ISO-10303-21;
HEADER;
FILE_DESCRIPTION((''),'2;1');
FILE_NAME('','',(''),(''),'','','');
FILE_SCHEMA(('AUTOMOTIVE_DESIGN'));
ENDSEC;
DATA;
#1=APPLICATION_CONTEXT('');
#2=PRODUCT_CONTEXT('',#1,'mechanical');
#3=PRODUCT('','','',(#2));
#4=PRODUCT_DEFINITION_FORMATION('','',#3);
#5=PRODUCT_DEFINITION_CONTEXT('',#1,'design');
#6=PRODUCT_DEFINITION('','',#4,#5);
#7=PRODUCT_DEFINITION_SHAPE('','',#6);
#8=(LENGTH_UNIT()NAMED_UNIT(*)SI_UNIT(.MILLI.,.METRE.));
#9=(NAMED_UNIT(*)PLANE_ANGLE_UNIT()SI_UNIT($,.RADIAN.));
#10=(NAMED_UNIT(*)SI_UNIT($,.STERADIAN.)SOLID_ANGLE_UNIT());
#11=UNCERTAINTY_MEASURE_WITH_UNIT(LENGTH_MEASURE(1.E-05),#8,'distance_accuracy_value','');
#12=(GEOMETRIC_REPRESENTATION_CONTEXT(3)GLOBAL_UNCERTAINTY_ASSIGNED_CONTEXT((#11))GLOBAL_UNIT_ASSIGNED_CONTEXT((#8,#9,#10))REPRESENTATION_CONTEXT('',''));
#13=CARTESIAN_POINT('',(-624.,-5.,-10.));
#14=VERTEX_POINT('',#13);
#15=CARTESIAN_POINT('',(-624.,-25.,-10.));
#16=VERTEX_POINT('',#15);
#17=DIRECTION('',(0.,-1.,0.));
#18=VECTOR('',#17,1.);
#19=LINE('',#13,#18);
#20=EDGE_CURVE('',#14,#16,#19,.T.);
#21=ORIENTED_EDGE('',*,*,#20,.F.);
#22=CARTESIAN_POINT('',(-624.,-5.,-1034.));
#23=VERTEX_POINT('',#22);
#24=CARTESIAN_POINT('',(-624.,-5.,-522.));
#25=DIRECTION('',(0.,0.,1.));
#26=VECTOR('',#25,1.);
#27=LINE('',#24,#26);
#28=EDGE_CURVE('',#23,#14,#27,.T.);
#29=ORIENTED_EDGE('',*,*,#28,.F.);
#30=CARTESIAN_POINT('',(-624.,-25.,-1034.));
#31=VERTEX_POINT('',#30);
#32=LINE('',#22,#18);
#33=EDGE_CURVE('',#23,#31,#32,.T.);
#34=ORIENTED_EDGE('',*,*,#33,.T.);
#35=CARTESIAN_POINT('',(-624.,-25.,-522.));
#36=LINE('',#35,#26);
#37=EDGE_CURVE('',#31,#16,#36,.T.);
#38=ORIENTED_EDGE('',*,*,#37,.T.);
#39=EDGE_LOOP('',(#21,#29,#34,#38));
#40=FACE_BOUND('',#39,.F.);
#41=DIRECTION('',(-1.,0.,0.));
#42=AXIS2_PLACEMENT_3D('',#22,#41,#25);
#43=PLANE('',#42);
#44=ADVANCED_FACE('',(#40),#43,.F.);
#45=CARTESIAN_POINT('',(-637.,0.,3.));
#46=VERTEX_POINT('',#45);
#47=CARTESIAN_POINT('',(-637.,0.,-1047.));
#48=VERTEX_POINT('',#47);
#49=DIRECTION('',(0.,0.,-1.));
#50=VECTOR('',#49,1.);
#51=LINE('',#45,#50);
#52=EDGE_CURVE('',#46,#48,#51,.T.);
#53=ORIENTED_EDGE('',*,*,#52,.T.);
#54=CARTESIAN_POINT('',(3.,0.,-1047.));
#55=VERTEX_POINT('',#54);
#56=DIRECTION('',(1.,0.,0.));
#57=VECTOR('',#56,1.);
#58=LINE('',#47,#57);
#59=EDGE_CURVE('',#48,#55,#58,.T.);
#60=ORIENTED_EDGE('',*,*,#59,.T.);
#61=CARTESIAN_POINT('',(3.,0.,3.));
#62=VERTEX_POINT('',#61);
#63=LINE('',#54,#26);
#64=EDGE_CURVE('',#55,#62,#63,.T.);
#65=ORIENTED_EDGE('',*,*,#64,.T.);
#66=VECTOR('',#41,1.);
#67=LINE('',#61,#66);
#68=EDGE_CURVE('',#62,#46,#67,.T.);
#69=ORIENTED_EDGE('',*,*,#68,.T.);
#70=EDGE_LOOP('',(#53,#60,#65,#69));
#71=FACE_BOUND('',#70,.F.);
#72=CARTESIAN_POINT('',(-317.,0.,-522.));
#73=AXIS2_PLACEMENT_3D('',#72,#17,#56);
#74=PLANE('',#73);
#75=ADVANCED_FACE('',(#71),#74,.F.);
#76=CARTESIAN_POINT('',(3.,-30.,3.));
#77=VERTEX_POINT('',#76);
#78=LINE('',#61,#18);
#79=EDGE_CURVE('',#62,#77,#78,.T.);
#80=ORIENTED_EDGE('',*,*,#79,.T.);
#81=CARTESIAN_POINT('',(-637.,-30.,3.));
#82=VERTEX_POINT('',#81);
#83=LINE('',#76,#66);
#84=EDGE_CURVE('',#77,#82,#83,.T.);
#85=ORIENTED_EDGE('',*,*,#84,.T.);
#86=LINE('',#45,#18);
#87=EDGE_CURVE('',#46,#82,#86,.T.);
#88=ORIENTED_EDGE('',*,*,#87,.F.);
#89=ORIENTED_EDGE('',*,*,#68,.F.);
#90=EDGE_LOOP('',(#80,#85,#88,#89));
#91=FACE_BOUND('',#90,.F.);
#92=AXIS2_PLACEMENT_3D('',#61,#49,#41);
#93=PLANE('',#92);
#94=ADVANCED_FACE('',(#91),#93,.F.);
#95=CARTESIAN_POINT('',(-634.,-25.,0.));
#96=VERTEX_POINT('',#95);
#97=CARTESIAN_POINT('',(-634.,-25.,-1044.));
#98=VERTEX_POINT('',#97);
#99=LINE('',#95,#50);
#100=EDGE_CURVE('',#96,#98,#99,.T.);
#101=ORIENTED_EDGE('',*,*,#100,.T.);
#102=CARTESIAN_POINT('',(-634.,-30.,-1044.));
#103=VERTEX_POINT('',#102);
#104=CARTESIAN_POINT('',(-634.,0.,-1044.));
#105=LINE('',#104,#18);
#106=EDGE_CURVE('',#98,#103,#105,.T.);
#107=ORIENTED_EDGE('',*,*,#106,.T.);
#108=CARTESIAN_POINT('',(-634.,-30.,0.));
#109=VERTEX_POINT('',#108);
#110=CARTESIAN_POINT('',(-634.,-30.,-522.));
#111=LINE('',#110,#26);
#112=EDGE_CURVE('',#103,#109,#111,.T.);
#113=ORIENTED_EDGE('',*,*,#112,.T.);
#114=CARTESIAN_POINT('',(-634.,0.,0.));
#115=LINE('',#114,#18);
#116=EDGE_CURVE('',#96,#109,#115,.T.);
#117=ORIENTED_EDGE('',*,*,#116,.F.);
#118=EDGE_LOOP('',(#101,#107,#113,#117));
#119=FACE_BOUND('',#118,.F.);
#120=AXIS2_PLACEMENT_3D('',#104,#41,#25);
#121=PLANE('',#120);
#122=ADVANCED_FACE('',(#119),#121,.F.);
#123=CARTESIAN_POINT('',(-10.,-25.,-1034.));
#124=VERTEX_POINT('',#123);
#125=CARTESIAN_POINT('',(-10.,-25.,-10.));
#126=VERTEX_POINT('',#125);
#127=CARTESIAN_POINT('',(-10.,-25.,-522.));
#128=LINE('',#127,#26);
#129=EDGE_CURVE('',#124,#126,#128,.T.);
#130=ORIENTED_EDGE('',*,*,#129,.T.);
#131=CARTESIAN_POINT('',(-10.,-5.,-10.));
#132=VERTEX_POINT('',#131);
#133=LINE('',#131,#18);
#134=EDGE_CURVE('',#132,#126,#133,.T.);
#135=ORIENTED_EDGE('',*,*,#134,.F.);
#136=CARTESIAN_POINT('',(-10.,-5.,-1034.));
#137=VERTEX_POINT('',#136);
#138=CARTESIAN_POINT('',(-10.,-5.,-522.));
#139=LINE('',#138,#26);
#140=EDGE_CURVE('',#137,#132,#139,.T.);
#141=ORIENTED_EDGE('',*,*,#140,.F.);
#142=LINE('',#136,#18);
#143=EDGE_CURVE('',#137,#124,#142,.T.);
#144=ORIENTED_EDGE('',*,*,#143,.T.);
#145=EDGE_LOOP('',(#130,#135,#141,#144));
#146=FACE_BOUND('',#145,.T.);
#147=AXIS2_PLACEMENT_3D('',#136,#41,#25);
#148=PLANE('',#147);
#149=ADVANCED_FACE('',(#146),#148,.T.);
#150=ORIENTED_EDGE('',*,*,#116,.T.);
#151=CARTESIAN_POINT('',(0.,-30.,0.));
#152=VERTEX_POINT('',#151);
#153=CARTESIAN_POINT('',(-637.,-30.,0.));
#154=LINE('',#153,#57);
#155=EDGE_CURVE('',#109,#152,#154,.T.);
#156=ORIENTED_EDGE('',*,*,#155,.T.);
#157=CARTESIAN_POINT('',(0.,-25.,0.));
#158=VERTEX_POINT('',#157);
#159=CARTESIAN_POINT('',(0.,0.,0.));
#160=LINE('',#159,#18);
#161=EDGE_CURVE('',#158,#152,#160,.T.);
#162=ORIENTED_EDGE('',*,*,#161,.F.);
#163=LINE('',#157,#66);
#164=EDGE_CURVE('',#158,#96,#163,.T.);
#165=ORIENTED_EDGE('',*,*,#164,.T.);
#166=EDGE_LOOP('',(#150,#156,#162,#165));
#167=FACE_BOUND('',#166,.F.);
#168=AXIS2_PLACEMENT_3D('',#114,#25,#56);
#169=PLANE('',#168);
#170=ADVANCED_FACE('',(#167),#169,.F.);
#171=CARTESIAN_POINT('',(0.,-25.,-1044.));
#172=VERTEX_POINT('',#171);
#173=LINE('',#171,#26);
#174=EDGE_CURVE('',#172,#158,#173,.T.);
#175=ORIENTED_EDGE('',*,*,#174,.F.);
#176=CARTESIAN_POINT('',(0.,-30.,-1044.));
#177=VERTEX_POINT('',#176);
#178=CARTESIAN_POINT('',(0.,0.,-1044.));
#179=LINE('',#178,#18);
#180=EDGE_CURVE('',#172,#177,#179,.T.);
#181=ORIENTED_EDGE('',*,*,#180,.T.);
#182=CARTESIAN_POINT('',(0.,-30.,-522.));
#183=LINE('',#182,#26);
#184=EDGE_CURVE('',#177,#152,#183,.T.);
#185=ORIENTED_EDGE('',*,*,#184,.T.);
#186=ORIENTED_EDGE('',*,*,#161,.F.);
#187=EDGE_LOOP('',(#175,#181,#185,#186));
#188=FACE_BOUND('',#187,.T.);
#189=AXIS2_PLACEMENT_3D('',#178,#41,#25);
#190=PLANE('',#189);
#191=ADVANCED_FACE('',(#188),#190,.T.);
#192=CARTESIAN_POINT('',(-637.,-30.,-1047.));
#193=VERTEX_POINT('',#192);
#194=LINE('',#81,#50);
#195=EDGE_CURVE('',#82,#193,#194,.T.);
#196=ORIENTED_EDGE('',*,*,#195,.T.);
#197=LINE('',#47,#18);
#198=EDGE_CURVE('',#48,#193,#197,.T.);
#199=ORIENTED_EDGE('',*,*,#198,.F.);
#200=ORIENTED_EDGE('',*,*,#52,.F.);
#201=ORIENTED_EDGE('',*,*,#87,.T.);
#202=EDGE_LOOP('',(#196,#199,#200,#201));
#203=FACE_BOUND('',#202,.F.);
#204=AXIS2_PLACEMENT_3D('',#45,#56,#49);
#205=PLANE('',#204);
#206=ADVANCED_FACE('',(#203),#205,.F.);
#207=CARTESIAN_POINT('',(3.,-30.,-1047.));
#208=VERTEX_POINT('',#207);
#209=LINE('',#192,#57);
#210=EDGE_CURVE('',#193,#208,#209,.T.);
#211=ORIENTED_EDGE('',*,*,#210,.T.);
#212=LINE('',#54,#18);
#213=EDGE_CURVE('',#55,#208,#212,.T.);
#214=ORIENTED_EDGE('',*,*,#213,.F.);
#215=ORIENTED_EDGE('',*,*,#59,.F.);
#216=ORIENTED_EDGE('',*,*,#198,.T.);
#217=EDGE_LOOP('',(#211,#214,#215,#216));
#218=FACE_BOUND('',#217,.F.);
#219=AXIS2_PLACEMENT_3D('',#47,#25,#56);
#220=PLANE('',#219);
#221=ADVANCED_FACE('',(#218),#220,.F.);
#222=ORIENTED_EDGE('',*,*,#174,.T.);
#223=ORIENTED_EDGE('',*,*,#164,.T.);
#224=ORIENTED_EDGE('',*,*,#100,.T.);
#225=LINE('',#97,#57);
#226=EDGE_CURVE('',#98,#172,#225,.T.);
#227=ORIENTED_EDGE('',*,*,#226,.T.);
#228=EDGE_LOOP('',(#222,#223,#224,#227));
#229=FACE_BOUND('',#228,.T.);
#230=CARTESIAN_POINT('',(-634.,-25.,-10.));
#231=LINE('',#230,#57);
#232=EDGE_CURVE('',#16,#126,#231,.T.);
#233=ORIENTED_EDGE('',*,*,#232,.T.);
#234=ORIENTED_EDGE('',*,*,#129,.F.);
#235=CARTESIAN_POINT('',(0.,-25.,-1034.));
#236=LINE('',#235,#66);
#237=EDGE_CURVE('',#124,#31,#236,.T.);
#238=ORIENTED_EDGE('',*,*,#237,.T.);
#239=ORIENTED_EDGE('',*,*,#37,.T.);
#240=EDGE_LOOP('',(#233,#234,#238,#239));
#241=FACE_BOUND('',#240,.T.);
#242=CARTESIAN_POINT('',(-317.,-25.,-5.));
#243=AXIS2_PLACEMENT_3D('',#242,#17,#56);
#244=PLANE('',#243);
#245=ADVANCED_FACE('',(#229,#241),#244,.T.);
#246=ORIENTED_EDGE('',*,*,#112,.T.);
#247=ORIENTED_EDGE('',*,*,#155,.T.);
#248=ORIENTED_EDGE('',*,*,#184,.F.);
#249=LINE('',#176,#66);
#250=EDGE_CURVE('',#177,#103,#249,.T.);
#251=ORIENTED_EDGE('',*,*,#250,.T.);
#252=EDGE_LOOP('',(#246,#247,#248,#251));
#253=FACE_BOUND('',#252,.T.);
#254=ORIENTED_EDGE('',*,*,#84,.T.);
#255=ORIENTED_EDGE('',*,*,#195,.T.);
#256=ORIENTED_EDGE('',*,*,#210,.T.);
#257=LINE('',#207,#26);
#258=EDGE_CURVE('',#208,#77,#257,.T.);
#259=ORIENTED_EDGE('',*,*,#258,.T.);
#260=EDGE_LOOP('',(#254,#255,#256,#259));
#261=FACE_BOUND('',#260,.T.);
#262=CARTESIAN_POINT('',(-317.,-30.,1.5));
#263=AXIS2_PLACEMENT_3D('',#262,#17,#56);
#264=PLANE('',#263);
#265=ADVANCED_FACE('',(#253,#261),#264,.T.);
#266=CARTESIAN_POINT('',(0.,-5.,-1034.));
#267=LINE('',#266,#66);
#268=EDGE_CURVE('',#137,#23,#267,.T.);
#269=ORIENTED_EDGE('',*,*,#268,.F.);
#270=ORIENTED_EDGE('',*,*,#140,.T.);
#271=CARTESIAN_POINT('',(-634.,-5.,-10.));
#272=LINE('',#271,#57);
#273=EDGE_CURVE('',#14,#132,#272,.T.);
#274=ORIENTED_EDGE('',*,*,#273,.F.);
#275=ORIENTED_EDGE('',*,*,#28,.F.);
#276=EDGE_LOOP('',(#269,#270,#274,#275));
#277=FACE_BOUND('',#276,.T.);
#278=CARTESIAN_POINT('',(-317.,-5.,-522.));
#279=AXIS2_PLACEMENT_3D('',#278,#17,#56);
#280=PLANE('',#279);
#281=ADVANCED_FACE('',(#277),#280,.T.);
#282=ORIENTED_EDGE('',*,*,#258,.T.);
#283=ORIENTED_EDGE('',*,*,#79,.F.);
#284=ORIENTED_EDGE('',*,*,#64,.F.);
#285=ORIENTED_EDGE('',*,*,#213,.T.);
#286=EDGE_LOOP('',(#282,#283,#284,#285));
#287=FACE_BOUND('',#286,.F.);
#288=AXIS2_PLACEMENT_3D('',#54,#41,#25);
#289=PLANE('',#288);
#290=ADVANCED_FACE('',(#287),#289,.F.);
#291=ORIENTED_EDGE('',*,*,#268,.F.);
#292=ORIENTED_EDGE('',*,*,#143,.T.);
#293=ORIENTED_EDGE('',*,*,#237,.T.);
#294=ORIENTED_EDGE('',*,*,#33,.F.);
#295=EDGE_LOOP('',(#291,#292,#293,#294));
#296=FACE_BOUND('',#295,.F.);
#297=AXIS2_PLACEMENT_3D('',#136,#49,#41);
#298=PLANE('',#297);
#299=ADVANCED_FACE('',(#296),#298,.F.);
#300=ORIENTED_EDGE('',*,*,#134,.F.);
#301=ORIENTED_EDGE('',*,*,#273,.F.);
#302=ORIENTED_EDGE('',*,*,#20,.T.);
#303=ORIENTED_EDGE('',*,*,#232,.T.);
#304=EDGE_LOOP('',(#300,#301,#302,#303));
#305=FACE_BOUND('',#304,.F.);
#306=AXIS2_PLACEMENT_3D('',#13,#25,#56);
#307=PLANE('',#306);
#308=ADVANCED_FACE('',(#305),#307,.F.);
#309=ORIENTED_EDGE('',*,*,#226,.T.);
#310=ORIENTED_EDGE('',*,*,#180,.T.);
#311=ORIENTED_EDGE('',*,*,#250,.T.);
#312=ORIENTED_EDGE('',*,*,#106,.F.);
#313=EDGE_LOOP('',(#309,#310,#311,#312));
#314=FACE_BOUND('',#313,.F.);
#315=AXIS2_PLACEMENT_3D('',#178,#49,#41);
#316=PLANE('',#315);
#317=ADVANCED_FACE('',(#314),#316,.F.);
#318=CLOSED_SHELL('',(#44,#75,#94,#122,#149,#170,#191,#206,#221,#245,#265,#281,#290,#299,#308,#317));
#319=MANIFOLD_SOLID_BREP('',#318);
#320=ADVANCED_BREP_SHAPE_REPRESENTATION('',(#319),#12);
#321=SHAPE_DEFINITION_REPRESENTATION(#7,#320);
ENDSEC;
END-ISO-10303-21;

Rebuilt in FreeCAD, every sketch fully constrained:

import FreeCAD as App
import Part
import Sketcher

V = App.Vector
Q = App.Units.Quantity

doc = App.newDocument("Part")
body = doc.addObject("PartDesign::Body", "Body")

# Sketch on XZ plane
sketch1 = doc.addObject("Sketcher::SketchObject", "Sketch")
body.addObject(sketch1)
sketch1.AttachmentSupport = (doc.XZ_Plane, [""])
sketch1.MapMode = "FlatFace"
sketch1.addGeometry(Part.LineSegment(V(3, 3, 0), V(-637, 3, 0)), False)
sketch1.addGeometry(Part.LineSegment(V(-637, 3, 0), V(-637, -1047, 0)), False)
sketch1.addGeometry(Part.LineSegment(V(-637, -1047, 0), V(3, -1047, 0)), False)
sketch1.addGeometry(Part.LineSegment(V(3, -1047, 0), V(3, 3, 0)), False)
sketch1.addGeometry(Part.LineSegment(V(-634, -1044, 0), V(-634, 0, 0)), False)
sketch1.addGeometry(Part.LineSegment(V(-634, 0, 0), V(0, 0, 0)), False)
sketch1.addGeometry(Part.LineSegment(V(0, 0, 0), V(0, -1044, 0)), False)
sketch1.addGeometry(Part.LineSegment(V(0, -1044, 0), V(-634, -1044, 0)), False)
sketch1.addConstraint(Sketcher.Constraint("Coincident", 0, 2, 1, 1))
sketch1.addConstraint(Sketcher.Constraint("Coincident", 1, 2, 2, 1))
sketch1.addConstraint(Sketcher.Constraint("Coincident", 2, 2, 3, 1))
sketch1.addConstraint(Sketcher.Constraint("Coincident", 3, 2, 0, 1))
sketch1.addConstraint(Sketcher.Constraint("Coincident", 4, 2, 5, 1))
sketch1.addConstraint(Sketcher.Constraint("Coincident", 5, 2, 6, 1))
sketch1.addConstraint(Sketcher.Constraint("Coincident", 6, 2, 7, 1))
sketch1.addConstraint(Sketcher.Constraint("Coincident", 7, 2, 4, 1))
sketch1.addConstraint(Sketcher.Constraint("Horizontal", 0))
sketch1.addConstraint(Sketcher.Constraint("Vertical", 1))
sketch1.addConstraint(Sketcher.Constraint("Horizontal", 2))
sketch1.addConstraint(Sketcher.Constraint("Vertical", 3))
sketch1.addConstraint(Sketcher.Constraint("Vertical", 4))
sketch1.addConstraint(Sketcher.Constraint("Horizontal", 5))
sketch1.addConstraint(Sketcher.Constraint("Vertical", 6))
sketch1.addConstraint(Sketcher.Constraint("Horizontal", 7))
sketch1.addConstraint(Sketcher.Constraint("Coincident", 5, 2, -1, 1))
sketch1.addConstraint(Sketcher.Constraint("DistanceX", 0, 2, 0, 1, Q("640 mm")))
sketch1.addConstraint(Sketcher.Constraint("DistanceX", 5, 1, 5, 2, Q("634 mm")))
sketch1.addConstraint(Sketcher.Constraint("DistanceY", 1, 2, 1, 1, Q("1050 mm")))
sketch1.addConstraint(Sketcher.Constraint("DistanceY", 4, 1, 4, 2, Q("1044 mm")))
sketch1.addConstraint(Sketcher.Constraint("DistanceX", 0, 2, -1, 1, Q("637 mm")))
sketch1.addConstraint(Sketcher.Constraint("DistanceY", -1, 1, 0, 2, Q("3 mm")))
pad1 = doc.addObject("PartDesign::Pad", "Pad")
body.addObject(pad1)
pad1.Profile = sketch1
pad1.Length = 30

# Sketch on XZ plane
sketch2 = doc.addObject("Sketcher::SketchObject", "Sketch001")
body.addObject(sketch2)
sketch2.AttachmentSupport = (doc.XZ_Plane, [""])
sketch2.MapMode = "FlatFace"
sketch2.addGeometry(Part.LineSegment(V(-634, 0, 0), V(-634, -1044, 0)), False)
sketch2.addGeometry(Part.LineSegment(V(-634, -1044, 0), V(0, -1044, 0)), False)
sketch2.addGeometry(Part.LineSegment(V(0, -1044, 0), V(0, 0, 0)), False)
sketch2.addGeometry(Part.LineSegment(V(0, 0, 0), V(-634, 0, 0)), False)
sketch2.addConstraint(Sketcher.Constraint("Coincident", 0, 2, 1, 1))
sketch2.addConstraint(Sketcher.Constraint("Coincident", 1, 2, 2, 1))
sketch2.addConstraint(Sketcher.Constraint("Coincident", 2, 2, 3, 1))
sketch2.addConstraint(Sketcher.Constraint("Coincident", 3, 2, 0, 1))
sketch2.addConstraint(Sketcher.Constraint("Vertical", 0))
sketch2.addConstraint(Sketcher.Constraint("Horizontal", 1))
sketch2.addConstraint(Sketcher.Constraint("Vertical", 2))
sketch2.addConstraint(Sketcher.Constraint("Horizontal", 3))
sketch2.addConstraint(Sketcher.Constraint("Coincident", 2, 2, -1, 1))
sketch2.addConstraint(Sketcher.Constraint("DistanceX", 1, 1, 1, 2, Q("634 mm")))
sketch2.addConstraint(Sketcher.Constraint("DistanceY", 0, 2, 0, 1, Q("1044 mm")))
pad2 = doc.addObject("PartDesign::Pad", "Pad001")
body.addObject(pad2)
pad2.Profile = sketch2
pad2.Length = 5

# Sketch on XZ plane
sketch3 = doc.addObject("Sketcher::SketchObject", "Sketch002")
body.addObject(sketch3)
sketch3.AttachmentSupport = (doc.XZ_Plane, [""])
sketch3.MapMode = "FlatFace"
sketch3.AttachmentOffset = App.Placement(V(0, 0, 5), App.Rotation())
sketch3.addGeometry(Part.LineSegment(V(0, 0, 0), V(-634, 0, 0)), False)
sketch3.addGeometry(Part.LineSegment(V(-634, 0, 0), V(-634, -1044, 0)), False)
sketch3.addGeometry(Part.LineSegment(V(-634, -1044, 0), V(0, -1044, 0)), False)
sketch3.addGeometry(Part.LineSegment(V(0, -1044, 0), V(0, 0, 0)), False)
sketch3.addGeometry(Part.LineSegment(V(-10, -1034, 0), V(-624, -1034, 0)), False)
sketch3.addGeometry(Part.LineSegment(V(-624, -1034, 0), V(-624, -10, 0)), False)
sketch3.addGeometry(Part.LineSegment(V(-624, -10, 0), V(-10, -10, 0)), False)
sketch3.addGeometry(Part.LineSegment(V(-10, -10, 0), V(-10, -1034, 0)), False)
sketch3.addConstraint(Sketcher.Constraint("Coincident", 0, 2, 1, 1))
sketch3.addConstraint(Sketcher.Constraint("Coincident", 1, 2, 2, 1))
sketch3.addConstraint(Sketcher.Constraint("Coincident", 2, 2, 3, 1))
sketch3.addConstraint(Sketcher.Constraint("Coincident", 3, 2, 0, 1))
sketch3.addConstraint(Sketcher.Constraint("Coincident", 4, 2, 5, 1))
sketch3.addConstraint(Sketcher.Constraint("Coincident", 5, 2, 6, 1))
sketch3.addConstraint(Sketcher.Constraint("Coincident", 6, 2, 7, 1))
sketch3.addConstraint(Sketcher.Constraint("Coincident", 7, 2, 4, 1))
sketch3.addConstraint(Sketcher.Constraint("Horizontal", 0))
sketch3.addConstraint(Sketcher.Constraint("Vertical", 1))
sketch3.addConstraint(Sketcher.Constraint("Horizontal", 2))
sketch3.addConstraint(Sketcher.Constraint("Vertical", 3))
sketch3.addConstraint(Sketcher.Constraint("Horizontal", 4))
sketch3.addConstraint(Sketcher.Constraint("Vertical", 5))
sketch3.addConstraint(Sketcher.Constraint("Horizontal", 6))
sketch3.addConstraint(Sketcher.Constraint("Vertical", 7))
sketch3.addConstraint(Sketcher.Constraint("Coincident", 3, 2, -1, 1))
sketch3.addConstraint(Sketcher.Constraint("DistanceX", 0, 2, 0, 1, Q("634 mm")))
sketch3.addConstraint(Sketcher.Constraint("DistanceX", 4, 2, 4, 1, Q("614 mm")))
sketch3.addConstraint(Sketcher.Constraint("DistanceY", 1, 2, 1, 1, Q("1044 mm")))
sketch3.addConstraint(Sketcher.Constraint("DistanceY", 5, 1, 5, 2, Q("1024 mm")))
sketch3.addConstraint(Sketcher.Constraint("DistanceX", 4, 2, -1, 1, Q("624 mm")))
sketch3.addConstraint(Sketcher.Constraint("DistanceY", 4, 2, -1, 1, Q("1034 mm")))
pad3 = doc.addObject("PartDesign::Pad", "Pad002")
body.addObject(pad3)
pad3.Profile = sketch3
pad3.Length = 20

doc.recompute()
